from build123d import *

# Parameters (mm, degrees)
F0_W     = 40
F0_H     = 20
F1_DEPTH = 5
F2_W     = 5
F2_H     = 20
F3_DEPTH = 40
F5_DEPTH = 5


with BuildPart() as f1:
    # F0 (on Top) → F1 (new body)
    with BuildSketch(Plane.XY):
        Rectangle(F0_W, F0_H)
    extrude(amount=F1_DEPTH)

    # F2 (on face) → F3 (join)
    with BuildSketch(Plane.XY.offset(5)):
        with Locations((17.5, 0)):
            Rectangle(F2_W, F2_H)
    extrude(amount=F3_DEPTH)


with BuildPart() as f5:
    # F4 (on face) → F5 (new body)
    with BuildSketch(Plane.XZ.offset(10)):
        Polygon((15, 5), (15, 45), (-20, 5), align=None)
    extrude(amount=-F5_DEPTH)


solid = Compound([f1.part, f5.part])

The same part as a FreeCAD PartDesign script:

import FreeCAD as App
import Part
import Sketcher
Q = App.Units.Quantity

doc = App.newDocument("Part")
body = doc.addObject("PartDesign::Body", "Body")

# Sketch on XY plane
sketch1 = doc.addObject("Sketcher::SketchObject", "Sketch")
body.addObject(sketch1)
sketch1.AttachmentSupport = (doc.XY_Plane, [""])
sketch1.MapMode = "FlatFace"
sketch1.addGeometry(Part.LineSegment(App.Vector(-20, 10, 0), App.Vector(-20, -10, 0)), False)
sketch1.addGeometry(Part.LineSegment(App.Vector(-20, -10, 0), App.Vector(20, -10, 0)), False)
sketch1.addGeometry(Part.LineSegment(App.Vector(20, -10, 0), App.Vector(20, 10, 0)), False)
sketch1.addGeometry(Part.LineSegment(App.Vector(20, 10, 0), App.Vector(-20, 10, 0)), False)
sketch1.addConstraint(Sketcher.Constraint("Coincident", 0, 2, 1, 1))
sketch1.addConstraint(Sketcher.Constraint("Coincident", 1, 2, 2, 1))
sketch1.addConstraint(Sketcher.Constraint("Coincident", 2, 2, 3, 1))
sketch1.addConstraint(Sketcher.Constraint("Coincident", 3, 2, 0, 1))
sketch1.addConstraint(Sketcher.Constraint("Vertical", 0))
sketch1.addConstraint(Sketcher.Constraint("Horizontal", 1))
sketch1.addConstraint(Sketcher.Constraint("Vertical", 2))
sketch1.addConstraint(Sketcher.Constraint("Horizontal", 3))
sketch1.addConstraint(Sketcher.Constraint("Symmetric", 0, 2, 2, 2, -1, 1))
sketch1.addConstraint(Sketcher.Constraint("DistanceX", 1, 1, 1, 2, Q("40 mm")))
sketch1.addConstraint(Sketcher.Constraint("DistanceY", 0, 2, 0, 1, Q("20 mm")))
pad1 = doc.addObject("PartDesign::Pad", "Pad")
body.addObject(pad1)
pad1.Profile = sketch1
pad1.Length = 5

# Sketch on XY plane
sketch2 = doc.addObject("Sketcher::SketchObject", "Sketch001")
body.addObject(sketch2)
sketch2.AttachmentSupport = (doc.XY_Plane, [""])
sketch2.MapMode = "FlatFace"
sketch2.AttachmentOffset = App.Placement(App.Vector(0, 0, 5), App.Rotation())
sketch2.addGeometry(Part.LineSegment(App.Vector(15, 10, 0), App.Vector(15, -10, 0)), False)
sketch2.addGeometry(Part.LineSegment(App.Vector(15, -10, 0), App.Vector(20, -10, 0)), False)
sketch2.addGeometry(Part.LineSegment(App.Vector(20, -10, 0), App.Vector(20, 10, 0)), False)
sketch2.addGeometry(Part.LineSegment(App.Vector(20, 10, 0), App.Vector(15, 10, 0)), False)
sketch2.addConstraint(Sketcher.Constraint("Coincident", 0, 2, 1, 1))
sketch2.addConstraint(Sketcher.Constraint("Coincident", 1, 2, 2, 1))
sketch2.addConstraint(Sketcher.Constraint("Coincident", 2, 2, 3, 1))
sketch2.addConstraint(Sketcher.Constraint("Coincident", 3, 2, 0, 1))
sketch2.addConstraint(Sketcher.Constraint("Vertical", 0))
sketch2.addConstraint(Sketcher.Constraint("Horizontal", 1))
sketch2.addConstraint(Sketcher.Constraint("Vertical", 2))
sketch2.addConstraint(Sketcher.Constraint("Horizontal", 3))
sketch2.addConstraint(Sketcher.Constraint("DistanceX", 1, 1, 1, 2, Q("5 mm")))
sketch2.addConstraint(Sketcher.Constraint("DistanceY", 0, 2, 0, 1, Q("20 mm")))
sketch2.addConstraint(Sketcher.Constraint("DistanceX", -1, 1, 0, 2, Q("15 mm")))
sketch2.addConstraint(Sketcher.Constraint("DistanceY", 0, 2, -1, 1, Q("10 mm")))
pad2 = doc.addObject("PartDesign::Pad", "Pad001")
body.addObject(pad2)
pad2.Profile = sketch2
pad2.Length = 40
body2 = doc.addObject("PartDesign::Body", "Body001")

# Sketch on XZ plane
sketch3 = doc.addObject("Sketcher::SketchObject", "Sketch002")
body2.addObject(sketch3)
sketch3.AttachmentSupport = (doc.getObject("XZ_Plane001"), [""])
sketch3.MapMode = "FlatFace"
sketch3.AttachmentOffset = App.Placement(App.Vector(0, 0, 10), App.Rotation())
sketch3.addGeometry(Part.LineSegment(App.Vector(15, 5, 0), App.Vector(15, 45, 0)), False)
sketch3.addGeometry(Part.LineSegment(App.Vector(15, 45, 0), App.Vector(-20, 5, 0)), False)
sketch3.addGeometry(Part.LineSegment(App.Vector(-20, 5, 0), App.Vector(15, 5, 0)), False)
sketch3.addConstraint(Sketcher.Constraint("Coincident", 0, 2, 1, 1))
sketch3.addConstraint(Sketcher.Constraint("Coincident", 1, 2, 2, 1))
sketch3.addConstraint(Sketcher.Constraint("Coincident", 2, 2, 0, 1))
sketch3.addConstraint(Sketcher.Constraint("Vertical", 0))
sketch3.addConstraint(Sketcher.Constraint("Horizontal", 2))
sketch3.addConstraint(Sketcher.Constraint("DistanceX", 2, 1, 2, 2, Q("35 mm")))
sketch3.addConstraint(Sketcher.Constraint("DistanceY", 0, 1, 0, 2, Q("40 mm")))
sketch3.addConstraint(Sketcher.Constraint("DistanceX", -1, 1, 0, 2, Q("15 mm")))
sketch3.addConstraint(Sketcher.Constraint("DistanceY", -1, 1, 0, 2, Q("45 mm")))
pad3 = doc.addObject("PartDesign::Pad", "Pad002")
body2.addObject(pad3)
pad3.Profile = sketch3
pad3.Length = 5
pad3.Reversed = True

doc.recompute()
